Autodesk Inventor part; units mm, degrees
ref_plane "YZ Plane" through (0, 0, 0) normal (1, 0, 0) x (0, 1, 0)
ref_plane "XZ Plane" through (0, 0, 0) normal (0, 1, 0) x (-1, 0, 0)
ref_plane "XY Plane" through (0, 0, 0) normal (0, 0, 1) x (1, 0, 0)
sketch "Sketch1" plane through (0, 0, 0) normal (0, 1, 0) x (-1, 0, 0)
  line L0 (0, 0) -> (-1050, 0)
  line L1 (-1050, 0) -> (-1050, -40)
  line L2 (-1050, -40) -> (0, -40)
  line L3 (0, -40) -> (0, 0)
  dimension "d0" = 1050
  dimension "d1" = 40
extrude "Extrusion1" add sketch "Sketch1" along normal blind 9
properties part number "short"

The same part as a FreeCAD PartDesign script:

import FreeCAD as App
import Part
import Sketcher
from FreeCAD import Vector
Q = App.Units.Quantity


def add_polygon(sketch, points):
    """Adds a closed chain of lines whose ends are joined by coincident constraints."""
    first, n = sketch.GeometryCount, len(points)
    for a, b in zip(points, points[1:] + points[:1]):
        sketch.addGeometry(Part.LineSegment(App.Vector(*a, 0), App.Vector(*b, 0)), False)
    for i in range(n):
        sketch.addConstraint(Sketcher.Constraint("Coincident", first + i, 2, first + (i + 1) % n, 1))

doc = App.newDocument("Part")
body = doc.addObject("PartDesign::Body", "Body")

# Sketch on XZ plane
sketch1 = body.newObject("Sketcher::SketchObject", "Sketch")
sketch1.AttachmentSupport = (doc.getObject("XZ_Plane"), [""])
sketch1.MapMode = "FlatFace"
add_polygon(sketch1, [(0, -40), (0, 0), (1050, 0), (1050, -40)])  # lines 0-3
sketch1.addConstraint(Sketcher.Constraint("Vertical", 0))
sketch1.addConstraint(Sketcher.Constraint("Horizontal", 1))
sketch1.addConstraint(Sketcher.Constraint("Vertical", 2))
sketch1.addConstraint(Sketcher.Constraint("Horizontal", 3))
sketch1.addConstraint(Sketcher.Constraint("Coincident", 0, 2, -1, 1))
sketch1.addConstraint(Sketcher.Constraint("DistanceX", 1, 1, 1, 2, Q("1050 mm")))
sketch1.addConstraint(Sketcher.Constraint("DistanceY", 0, 1, 0, 2, Q("40 mm")))
pad1 = body.newObject("PartDesign::Pad", "Pad")
pad1.Profile = sketch1
pad1.Length = 9
pad1.Reversed = True

doc.recompute()
